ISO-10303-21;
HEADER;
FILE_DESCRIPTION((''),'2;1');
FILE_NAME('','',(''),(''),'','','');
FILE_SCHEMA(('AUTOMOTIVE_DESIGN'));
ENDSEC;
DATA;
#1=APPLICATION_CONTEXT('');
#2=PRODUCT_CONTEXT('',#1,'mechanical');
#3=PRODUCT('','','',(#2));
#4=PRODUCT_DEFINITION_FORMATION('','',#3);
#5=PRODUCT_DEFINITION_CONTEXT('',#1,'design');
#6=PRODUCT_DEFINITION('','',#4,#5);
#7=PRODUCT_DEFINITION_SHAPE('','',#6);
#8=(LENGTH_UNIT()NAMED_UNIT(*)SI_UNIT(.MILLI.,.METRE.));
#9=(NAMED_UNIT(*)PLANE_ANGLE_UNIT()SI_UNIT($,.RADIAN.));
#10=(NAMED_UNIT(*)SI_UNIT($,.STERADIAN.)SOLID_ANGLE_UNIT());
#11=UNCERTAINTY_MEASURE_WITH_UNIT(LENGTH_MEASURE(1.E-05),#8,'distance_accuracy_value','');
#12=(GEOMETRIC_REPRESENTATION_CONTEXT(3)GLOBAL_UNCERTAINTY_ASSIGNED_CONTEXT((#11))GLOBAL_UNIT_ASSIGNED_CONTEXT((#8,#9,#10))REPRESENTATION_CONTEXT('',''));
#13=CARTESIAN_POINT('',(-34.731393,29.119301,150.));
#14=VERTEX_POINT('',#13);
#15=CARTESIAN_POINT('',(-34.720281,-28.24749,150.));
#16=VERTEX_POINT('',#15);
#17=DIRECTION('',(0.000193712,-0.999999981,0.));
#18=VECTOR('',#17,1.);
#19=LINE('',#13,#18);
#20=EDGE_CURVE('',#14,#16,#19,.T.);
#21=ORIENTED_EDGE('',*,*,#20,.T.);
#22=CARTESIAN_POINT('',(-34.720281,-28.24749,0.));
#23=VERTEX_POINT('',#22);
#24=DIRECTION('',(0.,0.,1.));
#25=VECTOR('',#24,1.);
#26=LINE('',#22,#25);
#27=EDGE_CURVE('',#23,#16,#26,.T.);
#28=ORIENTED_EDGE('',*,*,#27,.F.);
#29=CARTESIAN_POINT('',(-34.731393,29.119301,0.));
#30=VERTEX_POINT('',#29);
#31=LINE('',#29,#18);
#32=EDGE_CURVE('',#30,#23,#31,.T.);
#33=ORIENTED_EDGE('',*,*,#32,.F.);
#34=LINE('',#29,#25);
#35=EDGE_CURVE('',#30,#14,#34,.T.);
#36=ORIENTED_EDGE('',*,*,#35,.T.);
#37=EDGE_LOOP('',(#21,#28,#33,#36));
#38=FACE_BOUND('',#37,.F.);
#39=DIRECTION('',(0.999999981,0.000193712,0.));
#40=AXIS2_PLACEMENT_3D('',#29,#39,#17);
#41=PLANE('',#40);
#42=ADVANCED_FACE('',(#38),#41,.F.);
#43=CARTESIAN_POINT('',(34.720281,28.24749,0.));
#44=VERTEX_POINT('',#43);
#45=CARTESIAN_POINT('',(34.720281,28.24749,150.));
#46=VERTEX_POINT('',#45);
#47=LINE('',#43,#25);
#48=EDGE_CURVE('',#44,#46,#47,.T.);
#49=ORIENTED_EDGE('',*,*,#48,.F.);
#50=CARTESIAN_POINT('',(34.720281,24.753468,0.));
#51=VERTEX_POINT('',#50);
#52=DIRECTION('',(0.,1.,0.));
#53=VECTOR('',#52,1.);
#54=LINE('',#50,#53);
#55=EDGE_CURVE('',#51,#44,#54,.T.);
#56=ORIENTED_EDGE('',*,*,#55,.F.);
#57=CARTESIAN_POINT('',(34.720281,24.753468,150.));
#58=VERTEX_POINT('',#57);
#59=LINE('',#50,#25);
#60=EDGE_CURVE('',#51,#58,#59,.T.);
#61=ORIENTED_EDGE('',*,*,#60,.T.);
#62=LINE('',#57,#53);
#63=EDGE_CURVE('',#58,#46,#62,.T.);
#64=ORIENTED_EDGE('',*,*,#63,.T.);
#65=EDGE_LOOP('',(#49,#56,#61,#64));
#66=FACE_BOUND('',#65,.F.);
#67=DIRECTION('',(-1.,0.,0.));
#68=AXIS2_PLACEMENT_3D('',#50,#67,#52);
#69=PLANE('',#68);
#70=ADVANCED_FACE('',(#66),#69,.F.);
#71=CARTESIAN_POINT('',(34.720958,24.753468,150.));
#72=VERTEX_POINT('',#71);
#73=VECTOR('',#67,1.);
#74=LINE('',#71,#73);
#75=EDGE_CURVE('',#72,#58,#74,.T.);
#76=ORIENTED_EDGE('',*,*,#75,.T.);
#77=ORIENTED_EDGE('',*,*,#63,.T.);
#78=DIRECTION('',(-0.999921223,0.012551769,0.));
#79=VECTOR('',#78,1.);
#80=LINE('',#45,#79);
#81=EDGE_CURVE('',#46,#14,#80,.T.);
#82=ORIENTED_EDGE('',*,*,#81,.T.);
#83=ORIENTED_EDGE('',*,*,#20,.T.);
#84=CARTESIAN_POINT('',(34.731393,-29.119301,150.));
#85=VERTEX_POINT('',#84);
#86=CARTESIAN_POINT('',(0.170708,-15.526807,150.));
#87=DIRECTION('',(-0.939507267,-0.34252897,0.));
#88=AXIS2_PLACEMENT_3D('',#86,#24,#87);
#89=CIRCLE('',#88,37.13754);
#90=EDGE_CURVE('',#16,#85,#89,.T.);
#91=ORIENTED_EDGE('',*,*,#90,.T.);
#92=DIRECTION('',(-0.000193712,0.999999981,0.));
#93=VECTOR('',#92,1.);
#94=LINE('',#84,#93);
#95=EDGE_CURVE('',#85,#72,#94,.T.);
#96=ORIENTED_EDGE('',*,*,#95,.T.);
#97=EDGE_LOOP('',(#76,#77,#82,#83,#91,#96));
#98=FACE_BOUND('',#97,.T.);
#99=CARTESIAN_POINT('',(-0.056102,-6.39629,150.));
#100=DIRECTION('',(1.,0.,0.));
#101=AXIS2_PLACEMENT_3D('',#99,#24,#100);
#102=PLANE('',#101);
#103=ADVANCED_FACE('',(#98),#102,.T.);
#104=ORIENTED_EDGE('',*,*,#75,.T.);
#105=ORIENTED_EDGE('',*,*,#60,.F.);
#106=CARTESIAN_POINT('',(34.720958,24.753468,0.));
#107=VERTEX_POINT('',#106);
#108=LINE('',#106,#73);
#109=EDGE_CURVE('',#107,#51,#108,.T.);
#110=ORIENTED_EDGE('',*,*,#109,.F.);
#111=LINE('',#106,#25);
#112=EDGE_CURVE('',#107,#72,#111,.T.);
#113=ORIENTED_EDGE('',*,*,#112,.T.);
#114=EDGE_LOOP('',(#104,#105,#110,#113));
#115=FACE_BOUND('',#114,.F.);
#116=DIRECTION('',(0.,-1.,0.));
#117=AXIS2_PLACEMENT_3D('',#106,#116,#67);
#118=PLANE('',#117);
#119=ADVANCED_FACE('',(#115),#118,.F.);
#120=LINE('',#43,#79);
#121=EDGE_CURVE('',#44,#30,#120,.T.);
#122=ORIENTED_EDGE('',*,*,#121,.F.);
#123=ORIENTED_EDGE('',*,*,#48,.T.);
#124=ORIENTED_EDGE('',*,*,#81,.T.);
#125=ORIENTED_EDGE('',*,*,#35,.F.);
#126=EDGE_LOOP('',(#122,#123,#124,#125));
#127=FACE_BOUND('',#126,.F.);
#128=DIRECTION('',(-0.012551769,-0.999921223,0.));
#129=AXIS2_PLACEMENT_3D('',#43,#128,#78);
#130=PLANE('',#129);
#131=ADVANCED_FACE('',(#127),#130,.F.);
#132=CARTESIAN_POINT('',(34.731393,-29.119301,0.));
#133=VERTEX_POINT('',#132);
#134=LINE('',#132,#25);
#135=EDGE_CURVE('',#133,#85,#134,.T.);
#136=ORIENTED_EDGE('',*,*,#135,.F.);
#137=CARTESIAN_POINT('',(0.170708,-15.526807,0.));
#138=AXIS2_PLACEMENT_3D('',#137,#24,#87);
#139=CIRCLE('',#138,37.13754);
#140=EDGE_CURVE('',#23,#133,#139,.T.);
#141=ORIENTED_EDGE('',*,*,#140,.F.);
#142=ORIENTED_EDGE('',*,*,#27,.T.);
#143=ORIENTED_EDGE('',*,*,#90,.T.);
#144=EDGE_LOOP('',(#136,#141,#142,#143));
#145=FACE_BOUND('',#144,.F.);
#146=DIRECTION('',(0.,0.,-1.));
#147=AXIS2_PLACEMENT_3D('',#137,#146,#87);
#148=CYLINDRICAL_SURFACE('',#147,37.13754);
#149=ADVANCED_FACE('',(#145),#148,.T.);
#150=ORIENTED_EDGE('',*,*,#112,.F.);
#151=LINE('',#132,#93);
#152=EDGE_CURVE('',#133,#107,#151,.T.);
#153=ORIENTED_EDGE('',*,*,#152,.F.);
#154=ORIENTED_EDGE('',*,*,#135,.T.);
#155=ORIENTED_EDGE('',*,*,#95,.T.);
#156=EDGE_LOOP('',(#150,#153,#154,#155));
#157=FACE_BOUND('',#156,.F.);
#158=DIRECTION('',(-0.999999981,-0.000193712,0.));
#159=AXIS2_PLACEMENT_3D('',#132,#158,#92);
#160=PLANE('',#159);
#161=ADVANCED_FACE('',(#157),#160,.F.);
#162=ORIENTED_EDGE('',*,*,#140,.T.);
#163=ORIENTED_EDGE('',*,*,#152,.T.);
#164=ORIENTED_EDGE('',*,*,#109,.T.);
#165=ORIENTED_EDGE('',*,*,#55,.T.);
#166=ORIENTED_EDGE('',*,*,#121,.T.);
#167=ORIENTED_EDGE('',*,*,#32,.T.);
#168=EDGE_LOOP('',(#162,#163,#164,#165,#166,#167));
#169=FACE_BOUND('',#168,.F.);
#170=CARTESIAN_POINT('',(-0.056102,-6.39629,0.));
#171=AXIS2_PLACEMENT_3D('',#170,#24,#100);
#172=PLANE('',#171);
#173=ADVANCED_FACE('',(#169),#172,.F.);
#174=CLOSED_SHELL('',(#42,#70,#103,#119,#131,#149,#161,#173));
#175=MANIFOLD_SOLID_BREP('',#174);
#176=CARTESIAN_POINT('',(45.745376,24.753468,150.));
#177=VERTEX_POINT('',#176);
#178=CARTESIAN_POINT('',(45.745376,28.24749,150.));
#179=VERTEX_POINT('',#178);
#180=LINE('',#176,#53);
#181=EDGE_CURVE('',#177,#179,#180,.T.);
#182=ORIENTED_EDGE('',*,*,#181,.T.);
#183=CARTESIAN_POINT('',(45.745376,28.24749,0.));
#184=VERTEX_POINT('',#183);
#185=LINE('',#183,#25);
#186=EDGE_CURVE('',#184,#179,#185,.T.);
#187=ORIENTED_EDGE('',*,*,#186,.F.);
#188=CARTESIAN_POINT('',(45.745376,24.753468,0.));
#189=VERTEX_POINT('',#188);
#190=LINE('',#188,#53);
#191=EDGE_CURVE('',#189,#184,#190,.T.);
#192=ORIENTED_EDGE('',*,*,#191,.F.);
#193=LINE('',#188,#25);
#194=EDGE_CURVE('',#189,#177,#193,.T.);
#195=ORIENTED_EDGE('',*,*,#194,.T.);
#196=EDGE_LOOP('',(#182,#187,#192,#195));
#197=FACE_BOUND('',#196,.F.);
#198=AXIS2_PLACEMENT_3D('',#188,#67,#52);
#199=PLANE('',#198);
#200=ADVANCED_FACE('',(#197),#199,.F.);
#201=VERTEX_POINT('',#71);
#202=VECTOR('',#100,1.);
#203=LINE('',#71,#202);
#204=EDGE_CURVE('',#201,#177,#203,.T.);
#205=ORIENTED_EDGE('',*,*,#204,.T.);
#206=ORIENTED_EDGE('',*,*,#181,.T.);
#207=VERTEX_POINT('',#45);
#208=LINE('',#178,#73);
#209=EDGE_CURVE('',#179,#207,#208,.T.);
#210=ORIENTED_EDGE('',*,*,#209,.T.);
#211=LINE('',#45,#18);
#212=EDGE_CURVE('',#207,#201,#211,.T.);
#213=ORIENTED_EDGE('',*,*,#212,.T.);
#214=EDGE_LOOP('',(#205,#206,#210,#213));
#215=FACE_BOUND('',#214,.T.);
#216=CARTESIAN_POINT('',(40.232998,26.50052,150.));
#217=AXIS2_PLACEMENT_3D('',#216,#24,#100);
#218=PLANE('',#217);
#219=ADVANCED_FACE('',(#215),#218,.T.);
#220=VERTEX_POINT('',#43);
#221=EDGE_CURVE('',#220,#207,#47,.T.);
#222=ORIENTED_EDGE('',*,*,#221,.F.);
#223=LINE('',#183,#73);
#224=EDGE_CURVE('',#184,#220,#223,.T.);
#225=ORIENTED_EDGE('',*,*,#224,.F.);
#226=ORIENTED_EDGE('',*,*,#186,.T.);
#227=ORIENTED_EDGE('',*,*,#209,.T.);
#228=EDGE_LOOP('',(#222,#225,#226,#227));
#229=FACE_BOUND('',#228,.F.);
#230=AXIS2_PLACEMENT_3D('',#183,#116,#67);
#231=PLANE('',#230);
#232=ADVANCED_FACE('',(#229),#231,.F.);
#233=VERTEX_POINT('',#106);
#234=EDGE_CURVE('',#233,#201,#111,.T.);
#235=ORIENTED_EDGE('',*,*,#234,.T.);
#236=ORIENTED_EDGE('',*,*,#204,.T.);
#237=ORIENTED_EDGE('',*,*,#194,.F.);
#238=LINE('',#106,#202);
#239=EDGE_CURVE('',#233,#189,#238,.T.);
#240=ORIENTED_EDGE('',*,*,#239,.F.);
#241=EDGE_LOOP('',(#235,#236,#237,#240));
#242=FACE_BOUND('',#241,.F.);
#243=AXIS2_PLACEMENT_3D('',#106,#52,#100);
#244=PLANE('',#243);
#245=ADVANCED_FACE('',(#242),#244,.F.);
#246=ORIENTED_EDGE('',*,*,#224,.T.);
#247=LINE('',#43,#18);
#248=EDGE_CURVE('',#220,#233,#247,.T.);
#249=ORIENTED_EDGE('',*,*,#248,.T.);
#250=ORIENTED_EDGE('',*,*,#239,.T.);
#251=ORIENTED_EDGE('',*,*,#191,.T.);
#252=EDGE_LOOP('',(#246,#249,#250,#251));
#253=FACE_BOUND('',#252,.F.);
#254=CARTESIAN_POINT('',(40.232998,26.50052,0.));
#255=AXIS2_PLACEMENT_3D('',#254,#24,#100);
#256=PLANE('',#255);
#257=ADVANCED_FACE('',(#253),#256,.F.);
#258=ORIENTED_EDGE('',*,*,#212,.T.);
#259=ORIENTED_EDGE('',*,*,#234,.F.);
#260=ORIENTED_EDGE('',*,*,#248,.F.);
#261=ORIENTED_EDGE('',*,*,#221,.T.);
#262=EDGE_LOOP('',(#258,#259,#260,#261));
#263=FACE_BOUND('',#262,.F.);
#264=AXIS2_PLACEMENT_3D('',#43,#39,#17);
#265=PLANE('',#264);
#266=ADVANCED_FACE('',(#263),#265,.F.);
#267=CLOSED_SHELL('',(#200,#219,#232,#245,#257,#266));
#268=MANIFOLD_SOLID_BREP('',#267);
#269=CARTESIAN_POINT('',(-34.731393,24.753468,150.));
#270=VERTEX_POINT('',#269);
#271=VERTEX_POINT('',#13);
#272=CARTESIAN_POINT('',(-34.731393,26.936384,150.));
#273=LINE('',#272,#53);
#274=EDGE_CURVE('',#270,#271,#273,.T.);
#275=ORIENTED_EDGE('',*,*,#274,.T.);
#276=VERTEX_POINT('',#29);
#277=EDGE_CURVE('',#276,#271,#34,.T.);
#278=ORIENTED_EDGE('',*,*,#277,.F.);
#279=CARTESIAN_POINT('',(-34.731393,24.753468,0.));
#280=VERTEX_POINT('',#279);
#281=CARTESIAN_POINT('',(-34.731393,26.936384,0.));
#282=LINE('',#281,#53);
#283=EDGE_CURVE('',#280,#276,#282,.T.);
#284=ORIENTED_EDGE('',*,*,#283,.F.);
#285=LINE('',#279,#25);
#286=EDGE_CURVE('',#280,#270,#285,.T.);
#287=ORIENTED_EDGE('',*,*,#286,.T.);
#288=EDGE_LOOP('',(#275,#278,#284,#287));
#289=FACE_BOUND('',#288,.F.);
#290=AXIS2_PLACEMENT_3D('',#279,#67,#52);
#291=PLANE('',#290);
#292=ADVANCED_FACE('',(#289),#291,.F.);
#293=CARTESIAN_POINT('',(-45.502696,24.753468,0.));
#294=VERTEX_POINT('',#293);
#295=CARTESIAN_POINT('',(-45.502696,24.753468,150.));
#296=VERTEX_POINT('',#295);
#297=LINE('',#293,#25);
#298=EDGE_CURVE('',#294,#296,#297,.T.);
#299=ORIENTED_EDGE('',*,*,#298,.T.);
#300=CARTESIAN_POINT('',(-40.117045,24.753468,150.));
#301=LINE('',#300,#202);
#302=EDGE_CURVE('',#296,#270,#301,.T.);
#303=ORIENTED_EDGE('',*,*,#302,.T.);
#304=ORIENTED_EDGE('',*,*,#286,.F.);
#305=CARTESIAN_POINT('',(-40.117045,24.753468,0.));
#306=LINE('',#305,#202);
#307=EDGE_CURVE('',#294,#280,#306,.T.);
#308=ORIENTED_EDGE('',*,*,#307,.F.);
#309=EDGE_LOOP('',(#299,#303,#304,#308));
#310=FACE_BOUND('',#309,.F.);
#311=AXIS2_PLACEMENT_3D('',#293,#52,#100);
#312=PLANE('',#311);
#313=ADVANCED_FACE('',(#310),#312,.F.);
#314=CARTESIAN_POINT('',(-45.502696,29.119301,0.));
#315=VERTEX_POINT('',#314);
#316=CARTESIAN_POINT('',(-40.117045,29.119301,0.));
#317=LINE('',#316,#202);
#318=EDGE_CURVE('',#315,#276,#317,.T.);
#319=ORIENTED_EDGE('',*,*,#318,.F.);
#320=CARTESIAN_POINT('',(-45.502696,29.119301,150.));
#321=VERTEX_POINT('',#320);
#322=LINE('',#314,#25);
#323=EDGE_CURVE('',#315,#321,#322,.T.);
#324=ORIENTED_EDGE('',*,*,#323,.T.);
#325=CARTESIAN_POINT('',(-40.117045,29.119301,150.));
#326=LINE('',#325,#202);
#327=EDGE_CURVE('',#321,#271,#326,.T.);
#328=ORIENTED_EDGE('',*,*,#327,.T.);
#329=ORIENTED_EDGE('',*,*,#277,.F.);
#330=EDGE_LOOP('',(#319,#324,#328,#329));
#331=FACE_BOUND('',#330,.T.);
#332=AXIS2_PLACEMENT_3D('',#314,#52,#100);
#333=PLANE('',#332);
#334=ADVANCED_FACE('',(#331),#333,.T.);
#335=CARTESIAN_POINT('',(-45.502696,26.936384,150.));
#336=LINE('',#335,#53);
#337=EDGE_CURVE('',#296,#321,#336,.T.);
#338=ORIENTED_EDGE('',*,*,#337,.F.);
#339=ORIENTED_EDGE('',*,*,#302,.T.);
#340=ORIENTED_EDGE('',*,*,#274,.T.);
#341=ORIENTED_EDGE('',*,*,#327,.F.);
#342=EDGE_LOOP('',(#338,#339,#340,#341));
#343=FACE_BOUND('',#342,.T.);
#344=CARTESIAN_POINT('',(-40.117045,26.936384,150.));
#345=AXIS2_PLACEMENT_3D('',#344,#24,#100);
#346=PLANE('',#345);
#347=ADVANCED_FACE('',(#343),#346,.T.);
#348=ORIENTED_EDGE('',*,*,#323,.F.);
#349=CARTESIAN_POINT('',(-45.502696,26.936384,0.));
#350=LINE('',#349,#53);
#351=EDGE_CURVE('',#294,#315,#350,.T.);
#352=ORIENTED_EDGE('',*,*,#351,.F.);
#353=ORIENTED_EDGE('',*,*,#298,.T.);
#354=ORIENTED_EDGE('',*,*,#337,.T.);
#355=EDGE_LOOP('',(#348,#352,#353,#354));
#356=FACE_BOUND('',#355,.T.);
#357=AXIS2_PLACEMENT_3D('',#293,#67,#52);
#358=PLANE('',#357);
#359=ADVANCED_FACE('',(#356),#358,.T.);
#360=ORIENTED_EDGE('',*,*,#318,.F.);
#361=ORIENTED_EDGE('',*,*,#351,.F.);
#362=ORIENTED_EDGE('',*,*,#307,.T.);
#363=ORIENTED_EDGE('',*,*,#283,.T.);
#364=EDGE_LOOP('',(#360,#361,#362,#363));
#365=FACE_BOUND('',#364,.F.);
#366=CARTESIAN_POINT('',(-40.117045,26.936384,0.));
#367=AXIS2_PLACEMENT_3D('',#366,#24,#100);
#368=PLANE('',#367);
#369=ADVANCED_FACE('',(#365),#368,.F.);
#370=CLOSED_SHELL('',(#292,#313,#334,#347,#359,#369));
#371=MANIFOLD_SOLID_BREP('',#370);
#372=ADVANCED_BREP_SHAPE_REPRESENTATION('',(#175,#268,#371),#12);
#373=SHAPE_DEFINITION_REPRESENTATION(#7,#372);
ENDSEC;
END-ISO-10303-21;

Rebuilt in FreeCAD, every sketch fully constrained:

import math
import FreeCAD as App
import Part
import Sketcher

V = App.Vector

doc = App.newDocument("Part")
body = doc.addObject("PartDesign::Body", "Body")

sketch1 = doc.addObject("Sketcher::SketchObject", "Sketch")
body.addObject(sketch1)
sketch1.AttachmentSupport = (doc.XY_Plane, [""])
sketch1.MapMode = "FlatFace"
sketch1.addGeometry(Part.LineSegment(V(-45.5, 29.1, 0), V(-45.5, 24.8, 0)), False)
sketch1.addGeometry(Part.LineSegment(V(-45.5, 24.8, 0), V(-34.7, 24.8, 0)), False)
sketch1.addGeometry(Part.LineSegment(V(-34.7, 24.8, 0), V(-34.7, 29.1, 0)), False)
sketch1.addGeometry(Part.LineSegment(V(-34.7, 29.1, 0), V(-45.5, 29.1, 0)), False)
sketch1.addConstraint(Sketcher.Constraint("Coincident", 0, 2, 1, 1))
sketch1.addConstraint(Sketcher.Constraint("Coincident", 1, 2, 2, 1))
sketch1.addConstraint(Sketcher.Constraint("Coincident", 2, 2, 3, 1))
sketch1.addConstraint(Sketcher.Constraint("Coincident", 3, 2, 0, 1))
sketch1.addConstraint(Sketcher.Constraint("Vertical", 0))
sketch1.addConstraint(Sketcher.Constraint("Horizontal", 1))
sketch1.addConstraint(Sketcher.Constraint("Vertical", 2))
sketch1.addConstraint(Sketcher.Constraint("Horizontal", 3))
sketch1.addConstraint(Sketcher.Constraint("DistanceY", -1, 1, 2, 2, 29.119301))
sketch1.addConstraint(Sketcher.Constraint("DistanceX", 1, 1, 1, 2, 10.771303))
sketch1.addConstraint(Sketcher.Constraint("DistanceY", 0, 2, 0, 1, 4.365832))
sketch1.addConstraint(Sketcher.Constraint("DistanceX", 0, 2, -1, 1, 45.502696))
pad1 = doc.addObject("PartDesign::Pad", "Pad")
body.addObject(pad1)
pad1.Profile = sketch1
pad1.Length = 150
body2 = doc.addObject("PartDesign::Body", "Body001")

sketch2 = doc.addObject("Sketcher::SketchObject", "Sketch001")
body2.addObject(sketch2)
sketch2.AttachmentSupport = (doc.getObject("XY_Plane001"), [""])
sketch2.MapMode = "FlatFace"
sketch2.addGeometry(Part.LineSegment(V(34.720281, 24.753468, 0), V(34.720281, 28.24749, 0)), False)
sketch2.addGeometry(Part.LineSegment(V(34.720281, 28.24749, 0), V(-34.731393, 29.119301, 0)), False)
sketch2.addGeometry(Part.LineSegment(V(-34.731393, 29.119301, 0), V(-34.720281, -28.24749, 0)), False)
sketch2.addGeometry(Part.ArcOfCircle(Part.Circle(V(0.170708, -15.526807, 0), V(0, 0, 1), 37.13754), math.radians(-159.968972), math.radians(-21.469392)), False)
sketch2.addGeometry(Part.LineSegment(V(34.731393, -29.119301, 0), V(34.720958, 24.753468, 0)), False)
sketch2.addGeometry(Part.LineSegment(V(34.720958, 24.753468, 0), V(34.720281, 24.753468, 0)), False)
sketch2.addConstraint(Sketcher.Constraint("Coincident", 0, 2, 1, 1))
sketch2.addConstraint(Sketcher.Constraint("Coincident", 1, 2, 2, 1))
sketch2.addConstraint(Sketcher.Constraint("Coincident", 2, 2, 3, 1))
sketch2.addConstraint(Sketcher.Constraint("Coincident", 3, 2, 4, 1))
sketch2.addConstraint(Sketcher.Constraint("Coincident", 4, 2, 5, 1))
sketch2.addConstraint(Sketcher.Constraint("Coincident", 5, 2, 0, 1))
sketch2.addConstraint(Sketcher.Constraint("Vertical", 0))
sketch2.addConstraint(Sketcher.Constraint("Horizontal", 5))
sketch2.addConstraint(Sketcher.Constraint("Symmetric", 0, 2, 2, 2, -1, 1))
sketch2.addConstraint(Sketcher.Constraint("Symmetric", 1, 2, 3, 2, -1, 1))
sketch2.addConstraint(Sketcher.Constraint("Parallel", 2, 4))
sketch2.addConstraint(Sketcher.Constraint("Radius", 3, 37.13754))
sketch2.addConstraint(Sketcher.Constraint("DistanceY", -1, 1, 1, 2, 29.119301))
sketch2.addConstraint(Sketcher.Constraint("DistanceX", 1, 2, 3, 3, 34.902101))
sketch2.addConstraint(Sketcher.Constraint("Distance", 4, 53.87277))
sketch2.addConstraint(Sketcher.Constraint("DistanceX", 5, 2, 5, 1, 0.000677))
sketch2.addConstraint(Sketcher.Constraint("DistanceY", 0, 1, 0, 2, 3.494022))
pad2 = doc.addObject("PartDesign::Pad", "Pad001")
body2.addObject(pad2)
pad2.Profile = sketch2
pad2.Length = 150
body3 = doc.addObject("PartDesign::Body", "Body002")

sketch3 = doc.addObject("Sketcher::SketchObject", "Sketch002")
body3.addObject(sketch3)
sketch3.AttachmentSupport = (doc.getObject("XY_Plane002"), [""])
sketch3.MapMode = "FlatFace"
sketch3.addGeometry(Part.LineSegment(V(45.7, 28.2, 0), V(34.7, 28.2, 0)), False)
sketch3.addGeometry(Part.LineSegment(V(34.7, 28.2, 0), V(34.7, 24.8, 0)), False)
sketch3.addGeometry(Part.LineSegment(V(34.7, 24.8, 0), V(45.7, 24.8, 0)), False)
sketch3.addGeometry(Part.LineSegment(V(45.7, 24.8, 0), V(45.7, 28.2, 0)), False)
sketch3.addConstraint(Sketcher.Constraint("Coincident", 0, 2, 1, 1))
sketch3.addConstraint(Sketcher.Constraint("Coincident", 1, 2, 2, 1))
sketch3.addConstraint(Sketcher.Constraint("Coincident", 2, 2, 3, 1))
sketch3.addConstraint(Sketcher.Constraint("Coincident", 3, 2, 0, 1))
sketch3.addConstraint(Sketcher.Constraint("Horizontal", 0))
sketch3.addConstraint(Sketcher.Constraint("Horizontal", 2))
sketch3.addConstraint(Sketcher.Constraint("Vertical", 3))
sketch3.addConstraint(Sketcher.Constraint("DistanceX", 2, 1, 2, 2, 11.024419))
sketch3.addConstraint(Sketcher.Constraint("DistanceX", 0, 2, 0, 1, 11.025096))
sketch3.addConstraint(Sketcher.Constraint("DistanceY", 3, 1, 3, 2, 3.494022))
sketch3.addConstraint(Sketcher.Constraint("DistanceX", -1, 1, 0, 2, 34.720281))
sketch3.addConstraint(Sketcher.Constraint("DistanceY", -1, 1, 0, 2, 28.24749))
pad3 = doc.addObject("PartDesign::Pad", "Pad002")
body3.addObject(pad3)
pad3.Profile = sketch3
pad3.Length = 150

doc.recompute()
